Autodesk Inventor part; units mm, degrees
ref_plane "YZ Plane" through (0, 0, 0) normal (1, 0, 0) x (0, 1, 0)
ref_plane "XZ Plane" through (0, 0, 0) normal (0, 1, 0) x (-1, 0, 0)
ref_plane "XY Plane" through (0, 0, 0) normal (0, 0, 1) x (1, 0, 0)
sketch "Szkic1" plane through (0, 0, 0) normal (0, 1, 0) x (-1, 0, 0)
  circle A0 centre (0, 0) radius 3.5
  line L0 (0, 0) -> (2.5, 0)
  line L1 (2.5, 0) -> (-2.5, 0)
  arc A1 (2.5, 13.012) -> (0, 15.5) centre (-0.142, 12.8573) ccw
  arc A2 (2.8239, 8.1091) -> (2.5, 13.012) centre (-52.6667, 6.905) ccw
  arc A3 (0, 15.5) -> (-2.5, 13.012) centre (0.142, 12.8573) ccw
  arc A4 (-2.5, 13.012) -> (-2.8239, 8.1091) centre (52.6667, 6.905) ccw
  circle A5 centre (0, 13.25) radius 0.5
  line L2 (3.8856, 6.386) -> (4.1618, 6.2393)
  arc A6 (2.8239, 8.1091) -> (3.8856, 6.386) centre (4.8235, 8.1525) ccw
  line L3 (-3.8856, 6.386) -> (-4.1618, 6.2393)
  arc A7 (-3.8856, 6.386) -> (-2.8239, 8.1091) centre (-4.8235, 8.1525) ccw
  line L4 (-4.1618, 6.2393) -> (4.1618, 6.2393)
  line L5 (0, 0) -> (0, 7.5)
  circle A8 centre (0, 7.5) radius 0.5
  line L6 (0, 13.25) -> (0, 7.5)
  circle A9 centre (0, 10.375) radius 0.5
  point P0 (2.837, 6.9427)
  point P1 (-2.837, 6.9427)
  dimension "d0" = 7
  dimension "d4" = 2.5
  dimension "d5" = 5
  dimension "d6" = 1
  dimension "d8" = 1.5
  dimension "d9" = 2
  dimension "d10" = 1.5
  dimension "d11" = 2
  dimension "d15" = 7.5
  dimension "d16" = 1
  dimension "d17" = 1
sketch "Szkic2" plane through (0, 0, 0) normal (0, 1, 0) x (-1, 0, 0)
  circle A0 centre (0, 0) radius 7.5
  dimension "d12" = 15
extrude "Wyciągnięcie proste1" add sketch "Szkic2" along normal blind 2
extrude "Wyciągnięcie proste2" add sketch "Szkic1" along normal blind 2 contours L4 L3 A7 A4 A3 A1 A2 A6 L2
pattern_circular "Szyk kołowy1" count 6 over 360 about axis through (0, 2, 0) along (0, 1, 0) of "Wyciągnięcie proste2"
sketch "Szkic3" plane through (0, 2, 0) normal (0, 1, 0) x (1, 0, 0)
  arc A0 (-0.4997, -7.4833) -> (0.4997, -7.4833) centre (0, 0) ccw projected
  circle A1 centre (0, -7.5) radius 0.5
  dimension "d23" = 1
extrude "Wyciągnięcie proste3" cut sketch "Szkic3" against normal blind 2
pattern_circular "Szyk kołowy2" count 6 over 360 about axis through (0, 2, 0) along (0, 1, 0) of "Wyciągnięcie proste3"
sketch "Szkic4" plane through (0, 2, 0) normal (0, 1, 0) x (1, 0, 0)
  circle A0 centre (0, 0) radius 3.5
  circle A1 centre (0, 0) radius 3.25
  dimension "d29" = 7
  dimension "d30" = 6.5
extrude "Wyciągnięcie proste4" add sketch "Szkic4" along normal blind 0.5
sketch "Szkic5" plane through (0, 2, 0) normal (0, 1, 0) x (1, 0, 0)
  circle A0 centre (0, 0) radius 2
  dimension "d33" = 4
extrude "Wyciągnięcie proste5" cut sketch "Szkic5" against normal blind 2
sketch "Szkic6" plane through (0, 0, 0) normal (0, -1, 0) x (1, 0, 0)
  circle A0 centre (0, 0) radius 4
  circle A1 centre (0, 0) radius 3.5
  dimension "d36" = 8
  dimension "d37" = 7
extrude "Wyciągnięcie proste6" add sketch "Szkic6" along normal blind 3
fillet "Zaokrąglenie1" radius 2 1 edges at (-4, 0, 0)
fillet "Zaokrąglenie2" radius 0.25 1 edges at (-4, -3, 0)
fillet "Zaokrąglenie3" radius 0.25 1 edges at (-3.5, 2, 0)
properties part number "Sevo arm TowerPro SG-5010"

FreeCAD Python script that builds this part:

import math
import FreeCAD as App
import Part
import Sketcher
from FreeCAD import Vector


def edges_at(feature, points):
    """Names of the edges that pass closest to the given points."""
    edges = feature.Shape.Edges
    near = lambda p: min(range(len(edges)), key=lambda i: edges[i].distToShape(Part.Vertex(*p))[0])
    return sorted({f"Edge{near(p) + 1}" for p in points})

doc = App.newDocument("Part")
params = doc.addObject("Spreadsheet::Sheet", "Params")
for row, (alias, value) in enumerate([
    ("sketch1_diameter", "15 mm"),
    ("pad1_length", "2 mm"),
    ("sketch2_diameter", "1 mm"),
    ("sketch2_radius", "2 mm"),
    ("pad2_length", "2 mm"),
    ("sketch3_diameter", "1 mm"),
    ("pocket1_length", "2 mm"),
    ("sketch4_diameter", "7 mm"),
    ("sketch4_diameter2", "6.5 mm"),
    ("pad3_length", "0.5 mm"),
    ("sketch5_diameter", "4 mm"),
    ("pocket2_length", "2 mm"),
    ("sketch6_diameter", "8 mm"),
    ("sketch6_diameter2", "7 mm"),
    ("pad4_length", "3 mm"),
    ("fillet_radius", "2 mm"),
    ("fillet2_radius", "0.25 mm"),
    ("fillet3_radius", "0.25 mm"),
], start=1):
    params.set(f"A{row}", alias)
    params.set(f"B{row}", "=" + value)
    params.setAlias(f"B{row}", alias)

body = doc.addObject("PartDesign::Body", "Body")

# Sketch on XZ plane
sketch1 = body.newObject("Sketcher::SketchObject", "Sketch")
sketch1.AttachmentSupport = (doc.getObject("XZ_Plane"), [""])
sketch1.MapMode = "FlatFace"
sketch1.addGeometry(Part.Circle(Vector(0, 0, 0), Vector(0, 0, 1), 8), False)
sketch1.addConstraint(Sketcher.Constraint("Coincident", 0, 3, -1, 1))
sketch1.addConstraint(Sketcher.Constraint("Diameter", 0, 15.0))
sketch1.setExpression("Constraints[1]", "Params.sketch1_diameter")
pad1 = body.newObject("PartDesign::Pad", "Pad")
pad1.Profile = sketch1
pad1.setExpression("Length", "Params.pad1_length")
pad1.Reversed = True

# Sketch on XZ plane
sketch2 = body.newObject("Sketcher::SketchObject", "Sketch001")
sketch2.AttachmentSupport = (doc.getObject("XZ_Plane"), [""])
sketch2.MapMode = "FlatFace"
sketch2.addGeometry(Part.LineSegment(Vector(4.16, 6.24, 0), Vector(0, 6.24, 0)), False)
sketch2.addGeometry(Part.LineSegment(Vector(0, 6.24, 0), Vector(-4.16, 6.24, 0)), False)
sketch2.addGeometry(Part.LineSegment(Vector(-4.16, 6.24, 0), Vector(-3.89, 6.39, 0)), False)
sketch2.addGeometry(Part.ArcOfCircle(Part.Circle(Vector(-4.82, 8.15, 0), Vector(0, 0, 1), 2), math.radians(-62), math.radians(-1)), False)
sketch2.addGeometry(Part.ArcOfCircle(Part.Circle(Vector(52.68, 6.9, 0), Vector(0, 0, 1), 55.52), math.radians(173.68), math.radians(178.76)), False)
sketch2.addGeometry(Part.ArcOfCircle(Part.Circle(Vector(0.14, 12.86, 0), Vector(0, 0, 1), 2.65), math.radians(93), math.radians(177)), False)
sketch2.addGeometry(Part.ArcOfCircle(Part.Circle(Vector(-0.14, 12.86, 0), Vector(0, 0, 1), 2.65), math.radians(3), math.radians(87)), False)
sketch2.addGeometry(Part.ArcOfCircle(Part.Circle(Vector(-52.65, 6.91, 0), Vector(0, 0, 1), 55.49), math.radians(1.24), math.radians(6.32)), False)
sketch2.addGeometry(Part.ArcOfCircle(Part.Circle(Vector(4.82, 8.15, 0), Vector(0, 0, 1), 2), math.radians(-179), math.radians(-118)), False)
sketch2.addGeometry(Part.LineSegment(Vector(3.89, 6.39, 0), Vector(4.16, 6.24, 0)), False)
sketch2.addGeometry(Part.ArcOfCircle(Part.Circle(Vector(0, 7.5, 0), Vector(0, 0, 1), 0.5), math.radians(90), math.radians(270)), False)
sketch2.addGeometry(Part.ArcOfCircle(Part.Circle(Vector(0, 7.5, 0), Vector(0, 0, 1), 0.5), math.radians(-90), math.radians(90)), False)
sketch2.addGeometry(Part.ArcOfCircle(Part.Circle(Vector(0, 10.38, 0), Vector(0, 0, 1), 0.5), math.radians(90), math.radians(270)), False)
sketch2.addGeometry(Part.ArcOfCircle(Part.Circle(Vector(0, 10.38, 0), Vector(0, 0, 1), 0.5), math.radians(-90), math.radians(90)), False)
sketch2.addGeometry(Part.Circle(Vector(0, 13.25, 0), Vector(0, 0, 1), 0.5), False)
sketch2.addConstraint(Sketcher.Constraint("Coincident", 0, 2, 1, 1))
sketch2.addConstraint(Sketcher.Constraint("Coincident", 1, 2, 2, 1))
sketch2.addConstraint(Sketcher.Constraint("Tangent", 2, 2, 3, 1))
sketch2.addConstraint(Sketcher.Constraint("Tangent", 3, 2, 4, 2))
sketch2.addConstraint(Sketcher.Constraint("Coincident", 4, 1, 5, 2))
sketch2.addConstraint(Sketcher.Constraint("Coincident", 5, 1, 6, 2))
sketch2.addConstraint(Sketcher.Constraint("Coincident", 6, 1, 7, 2))
sketch2.addConstraint(Sketcher.Constraint("Tangent", 7, 1, 8, 1))
sketch2.addConstraint(Sketcher.Constraint("Tangent", 8, 2, 9, 1))
sketch2.addConstraint(Sketcher.Constraint("Coincident", 9, 2, 0, 1))
sketch2.addConstraint(Sketcher.Constraint("Tangent", 10, 1, 11, 2))
sketch2.addConstraint(Sketcher.Constraint("Coincident", 11, 1, 10, 2))
sketch2.addConstraint(Sketcher.Constraint("Tangent", 12, 1, 13, 2))
sketch2.addConstraint(Sketcher.Constraint("Coincident", 13, 1, 12, 2))
sketch2.addConstraint(Sketcher.Constraint("Horizontal", 0))
sketch2.addConstraint(Sketcher.Constraint("Horizontal", 1))
sketch2.addConstraint(Sketcher.Constraint("Equal", 5, 6))
sketch2.addConstraint(Sketcher.Constraint("Equal", 3, 8))
sketch2.addConstraint(Sketcher.Constraint("Equal", 11, 12))
sketch2.addConstraint(Sketcher.Constraint("Equal", 13, 14))
sketch2.addConstraint(Sketcher.Constraint("Symmetric", 5, 3, 6, 3, -2))
sketch2.addConstraint(Sketcher.Constraint("Symmetric", 3, 3, 8, 3, -2))
sketch2.addConstraint(Sketcher.Constraint("PointOnObject", 10, 3, -2))
sketch2.addConstraint(Sketcher.Constraint("PointOnObject", 12, 3, -2))
sketch2.addConstraint(Sketcher.Constraint("PointOnObject", 14, 3, -2))
sketch2.addConstraint(Sketcher.Constraint("PointOnObject", 0, 2, -2))
sketch2.addConstraint(Sketcher.Constraint("PointOnObject", 10, 1, -2))
sketch2.addConstraint(Sketcher.Constraint("PointOnObject", 11, 1, -2))
sketch2.addConstraint(Sketcher.Constraint("PointOnObject", 12, 1, -2))
sketch2.addConstraint(Sketcher.Constraint("PointOnObject", 13, 1, -2))
sketch2.addConstraint(Sketcher.Constraint("Horizontal", 4, 1, 6, 1))
sketch2.addConstraint(Sketcher.Constraint("Horizontal", 2, 2, 8, 2))
sketch2.addConstraint(Sketcher.Constraint("Diameter", 14, 1.0))
sketch2.addConstraint(Sketcher.Constraint("Radius", 3, 2.0))
sketch2.addConstraint(Sketcher.Constraint("DistanceY", -1, 1, 11, 1, 7.0))
sketch2.addConstraint(Sketcher.Constraint("DistanceX", 4, 1, -1, 1, 2.5))
sketch2.addConstraint(Sketcher.Constraint("DistanceY", -1, 1, 5, 1, 15.5))
sketch2.addConstraint(Sketcher.Constraint("Radius", 4, 55.5206))
sketch2.addConstraint(Sketcher.Constraint("Radius", 5, 2.6465))
sketch2.addConstraint(Sketcher.Constraint("Radius", 7, 55.4867))
sketch2.addConstraint(Sketcher.Constraint("DistanceY", -1, 1, 14, 3, 13.25))
sketch2.addConstraint(Sketcher.Constraint("DistanceX", 0, 2, 0, 1, 4.1618))
sketch2.addConstraint(Sketcher.Constraint("DistanceX", -1, 1, 5, 3, 0.142))
sketch2.addConstraint(Sketcher.Constraint("DistanceY", -1, 1, 12, 3, 10.375))
sketch2.addConstraint(Sketcher.Constraint("DistanceY", -1, 1, 2, 2, 6.386))
sketch2.addConstraint(Sketcher.Constraint("DistanceX", 3, 2, -1, 1, 2.824))
sketch2.addConstraint(Sketcher.Constraint("DistanceY", -1, 1, 3, 2, 8.109))
sketch2.setExpression("Constraints[32]", "Params.sketch2_diameter")
sketch2.setExpression("Constraints[33]", "Params.sketch2_radius")
pad2 = body.newObject("PartDesign::Pad", "Pad001")
pad2.Profile = sketch2
pad2.setExpression("Length", "Params.pad2_length")
pad2.Reversed = True
doc.recompute()

polarpattern = body.newObject("PartDesign::PolarPattern", "PolarPattern")
polarpattern.Originals = [pad2]
polarpattern.Axis = (doc.getObject("Y_Axis"), [""])
polarpattern.Angle = 360
polarpattern.Occurrences = 6
body.Tip = polarpattern

# Sketch on XZ plane
sketch3 = body.newObject("Sketcher::SketchObject", "Sketch002")
sketch3.AttachmentSupport = (doc.getObject("XZ_Plane"), [""])
sketch3.MapMode = "FlatFace"
sketch3.AttachmentOffset = App.Placement(Vector(0, 0, -2), App.Rotation())
sketch3.addGeometry(Part.Circle(Vector(0, 7.5, 0), Vector(0, 0, 1), 0.5), False)
sketch3.addConstraint(Sketcher.Constraint("PointOnObject", 0, 3, -2))
sketch3.addConstraint(Sketcher.Constraint("Diameter", 0, 1.0))
sketch3.addConstraint(Sketcher.Constraint("DistanceY", -1, 1, 0, 3, 7.5))
sketch3.setExpression("Constraints[1]", "Params.sketch3_diameter")
pocket1 = body.newObject("PartDesign::Pocket", "Pocket")
pocket1.Profile = sketch3
pocket1.setExpression("Length", "Params.pocket1_length")
pocket1.Reversed = True
doc.recompute()

polarpattern2 = body.newObject("PartDesign::PolarPattern", "PolarPattern001")
polarpattern2.Originals = [pocket1]
polarpattern2.Axis = (doc.getObject("Y_Axis"), [""])
polarpattern2.Angle = 360
polarpattern2.Occurrences = 6
body.Tip = polarpattern2

# Sketch on XZ plane
sketch4 = body.newObject("Sketcher::SketchObject", "Sketch003")
sketch4.AttachmentSupport = (doc.getObject("XZ_Plane"), [""])
sketch4.MapMode = "FlatFace"
sketch4.AttachmentOffset = App.Placement(Vector(0, 0, -2), App.Rotation())
sketch4.addGeometry(Part.Circle(Vector(0, 0, 0), Vector(0, 0, 1), 3.5), False)
sketch4.addGeometry(Part.Circle(Vector(0, 0, 0), Vector(0, 0, 1), 3.2), False)
sketch4.addConstraint(Sketcher.Constraint("Coincident", 0, 3, -1, 1))
sketch4.addConstraint(Sketcher.Constraint("Coincident", 1, 3, -1, 1))
sketch4.addConstraint(Sketcher.Constraint("Diameter", 0, 7.0))
sketch4.addConstraint(Sketcher.Constraint("Diameter", 1, 6.5))
sketch4.setExpression("Constraints[2]", "Params.sketch4_diameter")
sketch4.setExpression("Constraints[3]", "Params.sketch4_diameter2")
pad3 = body.newObject("PartDesign::Pad", "Pad002")
pad3.Profile = sketch4
pad3.setExpression("Length", "Params.pad3_length")
pad3.Reversed = True

# Sketch on XZ plane
sketch5 = body.newObject("Sketcher::SketchObject", "Sketch004")
sketch5.AttachmentSupport = (doc.getObject("XZ_Plane"), [""])
sketch5.MapMode = "FlatFace"
sketch5.AttachmentOffset = App.Placement(Vector(0, 0, -2), App.Rotation())
sketch5.addGeometry(Part.Circle(Vector(0, 0, 0), Vector(0, 0, 1), 2), False)
sketch5.addConstraint(Sketcher.Constraint("Coincident", 0, 3, -1, 1))
sketch5.addConstraint(Sketcher.Constraint("Diameter", 0, 4.0))
sketch5.setExpression("Constraints[1]", "Params.sketch5_diameter")
pocket2 = body.newObject("PartDesign::Pocket", "Pocket001")
pocket2.Profile = sketch5
pocket2.setExpression("Length", "Params.pocket2_length")
pocket2.Reversed = True

# Sketch on XZ plane
sketch6 = body.newObject("Sketcher::SketchObject", "Sketch005")
sketch6.AttachmentSupport = (doc.getObject("XZ_Plane"), [""])
sketch6.MapMode = "FlatFace"
sketch6.addGeometry(Part.Circle(Vector(0, 0, 0), Vector(0, 0, 1), 4), False)
sketch6.addGeometry(Part.Circle(Vector(0, 0, 0), Vector(0, 0, 1), 3.5), False)
sketch6.addConstraint(Sketcher.Constraint("Coincident", 0, 3, -1, 1))
sketch6.addConstraint(Sketcher.Constraint("Coincident", 1, 3, -1, 1))
sketch6.addConstraint(Sketcher.Constraint("Diameter", 0, 8.0))
sketch6.addConstraint(Sketcher.Constraint("Diameter", 1, 7.0))
sketch6.setExpression("Constraints[2]", "Params.sketch6_diameter")
sketch6.setExpression("Constraints[3]", "Params.sketch6_diameter2")
pad4 = body.newObject("PartDesign::Pad", "Pad003")
pad4.Profile = sketch6
pad4.setExpression("Length", "Params.pad4_length")
doc.recompute()

fillet = body.newObject("PartDesign::Fillet", "Fillet")
fillet.Base = (pad4, edges_at(pad4, [(-4, 0, 0)]))
fillet.setExpression("Radius", "Params.fillet_radius")
doc.recompute()

fillet2 = body.newObject("PartDesign::Fillet", "Fillet001")
fillet2.Base = (fillet, edges_at(fillet, [(-4, -3, 0)]))
fillet2.setExpression("Radius", "Params.fillet2_radius")
doc.recompute()

fillet3 = body.newObject("PartDesign::Fillet", "Fillet002")
fillet3.Base = (fillet2, edges_at(fillet2, [(-3.5, 2, 0)]))
fillet3.setExpression("Radius", "Params.fillet3_radius")

doc.recompute()
